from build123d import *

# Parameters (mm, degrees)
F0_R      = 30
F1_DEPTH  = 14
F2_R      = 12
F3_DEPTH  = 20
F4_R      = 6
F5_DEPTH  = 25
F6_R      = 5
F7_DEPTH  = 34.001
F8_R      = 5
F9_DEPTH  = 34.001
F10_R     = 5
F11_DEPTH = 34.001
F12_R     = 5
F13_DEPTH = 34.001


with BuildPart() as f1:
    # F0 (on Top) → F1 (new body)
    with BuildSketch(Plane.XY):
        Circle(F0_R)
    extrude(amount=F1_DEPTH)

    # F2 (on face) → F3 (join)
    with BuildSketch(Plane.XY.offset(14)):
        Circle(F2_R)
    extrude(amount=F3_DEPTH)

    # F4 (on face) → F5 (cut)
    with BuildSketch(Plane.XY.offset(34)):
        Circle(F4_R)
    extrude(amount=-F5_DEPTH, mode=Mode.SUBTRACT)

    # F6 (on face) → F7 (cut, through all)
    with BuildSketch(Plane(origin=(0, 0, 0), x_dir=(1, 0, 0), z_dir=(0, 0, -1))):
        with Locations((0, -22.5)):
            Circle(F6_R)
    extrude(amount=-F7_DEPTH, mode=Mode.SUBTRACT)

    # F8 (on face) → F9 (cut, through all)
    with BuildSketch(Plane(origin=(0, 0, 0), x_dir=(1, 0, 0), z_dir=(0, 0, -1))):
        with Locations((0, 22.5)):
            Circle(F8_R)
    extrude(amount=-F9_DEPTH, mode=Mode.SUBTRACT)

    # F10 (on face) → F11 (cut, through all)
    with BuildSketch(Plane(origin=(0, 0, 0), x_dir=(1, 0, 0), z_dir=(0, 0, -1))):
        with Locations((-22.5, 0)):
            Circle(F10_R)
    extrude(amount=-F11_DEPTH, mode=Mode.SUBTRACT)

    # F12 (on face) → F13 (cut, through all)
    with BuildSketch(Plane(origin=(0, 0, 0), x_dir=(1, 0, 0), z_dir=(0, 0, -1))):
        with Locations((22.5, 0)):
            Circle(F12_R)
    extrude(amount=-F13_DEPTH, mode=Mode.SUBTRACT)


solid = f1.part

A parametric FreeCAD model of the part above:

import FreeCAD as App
import Part
import Sketcher

V = App.Vector
Q = App.Units.Quantity

doc = App.newDocument("Part")
body = doc.addObject("PartDesign::Body", "Body")

# Sketch on XY plane
sketch1 = body.newObject("Sketcher::SketchObject", "Sketch")
sketch1.AttachmentSupport = (doc.getObject("XY_Plane"), [""])
sketch1.MapMode = "FlatFace"
sketch1.addGeometry(Part.Circle(V(0, 0, 0), V(0, 0, 1), 30), False)
sketch1.addConstraint([
    Sketcher.Constraint("Coincident", 0, 3, -1, 1),
    Sketcher.Constraint("Diameter", 0, Q("60 mm")),
])
pad1 = body.newObject("PartDesign::Pad", "Pad")
pad1.Profile = sketch1
pad1.Length = 14

# Sketch on XY plane
sketch2 = body.newObject("Sketcher::SketchObject", "Sketch001")
sketch2.AttachmentSupport = (doc.getObject("XY_Plane"), [""])
sketch2.MapMode = "FlatFace"
sketch2.AttachmentOffset = App.Placement(V(0, 0, 14), App.Rotation())
sketch2.addGeometry(Part.Circle(V(0, 0, 0), V(0, 0, 1), 12), False)
sketch2.addConstraint([
    Sketcher.Constraint("Coincident", 0, 3, -1, 1),
    Sketcher.Constraint("Diameter", 0, Q("24 mm")),
])
pad2 = body.newObject("PartDesign::Pad", "Pad001")
pad2.Profile = sketch2
pad2.Length = 20

# Sketch on XY plane
sketch3 = body.newObject("Sketcher::SketchObject", "Sketch002")
sketch3.AttachmentSupport = (doc.getObject("XY_Plane"), [""])
sketch3.MapMode = "FlatFace"
sketch3.AttachmentOffset = App.Placement(V(0, 0, 34), App.Rotation())
sketch3.addGeometry(Part.Circle(V(0, 0, 0), V(0, 0, 1), 6), False)
sketch3.addConstraint([
    Sketcher.Constraint("Coincident", 0, 3, -1, 1),
    Sketcher.Constraint("Diameter", 0, Q("12 mm")),
])
pocket1 = body.newObject("PartDesign::Pocket", "Pocket")
pocket1.Profile = sketch3
pocket1.Length = 25

# Sketch on XY plane
sketch4 = body.newObject("Sketcher::SketchObject", "Sketch003")
sketch4.AttachmentSupport = (doc.getObject("XY_Plane"), [""])
sketch4.MapMode = "FlatFace"
sketch4.addGeometry(Part.Circle(V(0, 22, 0), V(0, 0, 1), 5), False)
sketch4.addConstraint([
    Sketcher.Constraint("PointOnObject", 0, 3, -2),
    Sketcher.Constraint("Diameter", 0, Q("10 mm")),
    Sketcher.Constraint("DistanceY", -1, 1, 0, 3, Q("22.5 mm")),
])
pocket2 = body.newObject("PartDesign::Pocket", "Pocket001")
pocket2.Profile = sketch4
pocket2.Type = "ThroughAll"
pocket2.Reversed = True

# Sketch on XY plane
sketch5 = body.newObject("Sketcher::SketchObject", "Sketch004")
sketch5.AttachmentSupport = (doc.getObject("XY_Plane"), [""])
sketch5.MapMode = "FlatFace"
sketch5.addGeometry(Part.Circle(V(0, -22, 0), V(0, 0, 1), 5), False)
sketch5.addConstraint([
    Sketcher.Constraint("PointOnObject", 0, 3, -2),
    Sketcher.Constraint("Diameter", 0, Q("10 mm")),
    Sketcher.Constraint("DistanceY", 0, 3, -1, 1, Q("22.5 mm")),
])
pocket3 = body.newObject("PartDesign::Pocket", "Pocket002")
pocket3.Profile = sketch5
pocket3.Type = "ThroughAll"
pocket3.Reversed = True

# Sketch on XY plane
sketch6 = body.newObject("Sketcher::SketchObject", "Sketch005")
sketch6.AttachmentSupport = (doc.getObject("XY_Plane"), [""])
sketch6.MapMode = "FlatFace"
sketch6.addGeometry(Part.Circle(V(-22, 0, 0), V(0, 0, 1), 5), False)
sketch6.addConstraint([
    Sketcher.Constraint("PointOnObject", 0, 3, -1),
    Sketcher.Constraint("Diameter", 0, Q("10 mm")),
    Sketcher.Constraint("DistanceX", 0, 3, -1, 1, Q("22.5 mm")),
])
pocket4 = body.newObject("PartDesign::Pocket", "Pocket003")
pocket4.Profile = sketch6
pocket4.Type = "ThroughAll"
pocket4.Reversed = True

# Sketch on XY plane
sketch7 = body.newObject("Sketcher::SketchObject", "Sketch006")
sketch7.AttachmentSupport = (doc.getObject("XY_Plane"), [""])
sketch7.MapMode = "FlatFace"
sketch7.addGeometry(Part.Circle(V(22, 0, 0), V(0, 0, 1), 5), False)
sketch7.addConstraint([
    Sketcher.Constraint("PointOnObject", 0, 3, -1),
    Sketcher.Constraint("Diameter", 0, Q("10 mm")),
    Sketcher.Constraint("DistanceX", -1, 1, 0, 3, Q("22.5 mm")),
])
pocket5 = body.newObject("PartDesign::Pocket", "Pocket004")
pocket5.Profile = sketch7
pocket5.Type = "ThroughAll"
pocket5.Reversed = True

doc.recompute()
